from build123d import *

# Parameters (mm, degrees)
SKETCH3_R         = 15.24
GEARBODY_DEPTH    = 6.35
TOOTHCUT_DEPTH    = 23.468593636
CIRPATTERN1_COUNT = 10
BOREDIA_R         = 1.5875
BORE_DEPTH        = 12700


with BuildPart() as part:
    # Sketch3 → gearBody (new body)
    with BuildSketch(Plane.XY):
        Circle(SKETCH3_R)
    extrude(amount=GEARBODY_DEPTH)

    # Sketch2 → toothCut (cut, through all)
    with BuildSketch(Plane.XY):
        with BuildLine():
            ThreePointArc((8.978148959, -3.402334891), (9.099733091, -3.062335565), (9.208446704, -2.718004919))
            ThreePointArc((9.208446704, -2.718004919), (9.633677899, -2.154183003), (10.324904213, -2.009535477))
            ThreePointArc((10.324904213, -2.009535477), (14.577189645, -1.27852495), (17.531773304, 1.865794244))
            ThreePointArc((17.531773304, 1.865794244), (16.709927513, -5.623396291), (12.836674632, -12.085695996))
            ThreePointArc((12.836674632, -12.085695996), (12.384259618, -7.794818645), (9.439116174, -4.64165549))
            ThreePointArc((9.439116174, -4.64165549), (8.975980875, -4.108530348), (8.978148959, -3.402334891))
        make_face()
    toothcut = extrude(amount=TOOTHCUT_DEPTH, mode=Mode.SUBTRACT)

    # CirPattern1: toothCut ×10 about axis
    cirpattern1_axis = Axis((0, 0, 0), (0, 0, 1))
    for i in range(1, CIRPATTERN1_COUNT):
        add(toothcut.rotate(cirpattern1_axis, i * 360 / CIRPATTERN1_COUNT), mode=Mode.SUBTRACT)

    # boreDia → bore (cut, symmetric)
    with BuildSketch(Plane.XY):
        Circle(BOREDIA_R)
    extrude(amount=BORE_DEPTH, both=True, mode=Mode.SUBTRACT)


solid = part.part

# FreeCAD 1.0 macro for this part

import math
import FreeCAD as App
import Part
import Sketcher
from FreeCAD import Vector
Q = App.Units.Quantity

doc = App.newDocument("Part")
body = doc.addObject("PartDesign::Body", "Body")

# Sketch on XY plane
sketch1 = body.newObject("Sketcher::SketchObject", "Sketch")
sketch1.AttachmentSupport = (doc.getObject("XY_Plane"), [""])
sketch1.MapMode = "FlatFace"
sketch1.addGeometry(Part.Circle(Vector(0, 0, 0), Vector(0, 0, 1), 15), False)
sketch1.addConstraint(Sketcher.Constraint("Coincident", 0, 3, -1, 1))
sketch1.addConstraint(Sketcher.Constraint("Diameter", 0, Q("1.2 in")))
pad1 = body.newObject("PartDesign::Pad", "Pad")
pad1.Profile = sketch1
pad1.Length = Q("0.25 in")

# Sketch on XY plane
sketch2 = body.newObject("Sketcher::SketchObject", "Sketch001")
sketch2.AttachmentSupport = (doc.getObject("XY_Plane"), [""])
sketch2.MapMode = "FlatFace"
sketch2.addGeometry(Part.ArcOfCircle(Part.Circle(Vector(0, 0, 0), Vector(0, 0, 1), 9.6), math.radians(-20.75), math.radians(-16.44)), False)
sketch2.addGeometry(Part.ArcOfCircle(Part.Circle(Vector(9.9, -3.8, 0), Vector(0, 0, 1), 1), math.radians(159), math.radians(242)), False)
sketch2.addGeometry(Part.ArcOfCircle(Part.Circle(Vector(6.2, -10.6, 0), Vector(0, 0, 1), 6.8), math.radians(-12), math.radians(62)), False)
sketch2.addGeometry(Part.ArcOfCircle(Part.Circle(Vector(0, 0, 0), Vector(0, 0, 1), 17.6), math.radians(-43), math.radians(6)), False)
sketch2.addGeometry(Part.ArcOfCircle(Part.Circle(Vector(11.4, 4.7, 0), Vector(0, 0, 1), 6.8), math.radians(-99), math.radians(-25)), False)
sketch2.addGeometry(Part.ArcOfCircle(Part.Circle(Vector(10.2, -3, 0), Vector(0, 0, 1), 1), math.radians(81), math.radians(164)), False)
sketch2.addConstraint(Sketcher.Constraint("Tangent", 0, 1, 1, 1))
sketch2.addConstraint(Sketcher.Constraint("Tangent", 1, 2, 2, 2))
sketch2.addConstraint(Sketcher.Constraint("Coincident", 2, 1, 3, 1))
sketch2.addConstraint(Sketcher.Constraint("Coincident", 3, 2, 4, 2))
sketch2.addConstraint(Sketcher.Constraint("Tangent", 4, 1, 5, 1))
sketch2.addConstraint(Sketcher.Constraint("Tangent", 5, 2, 0, 2))
sketch2.addConstraint(Sketcher.Constraint("Coincident", 0, 3, -1, 1))
sketch2.addConstraint(Sketcher.Constraint("Coincident", 3, 3, -1, 1))
sketch2.addConstraint(Sketcher.Constraint("Equal", 2, 4))
sketch2.addConstraint(Sketcher.Constraint("Equal", 1, 5))
sketch2.addConstraint(Sketcher.Constraint("Radius", 0, Q("0.378 in")))
sketch2.addConstraint(Sketcher.Constraint("Radius", 1, 1.00457))
sketch2.addConstraint(Sketcher.Constraint("Radius", 2, 6.794052))
sketch2.addConstraint(Sketcher.Constraint("Radius", 3, 17.630776))
sketch2.addConstraint(Sketcher.Constraint("DistanceX", 2, 3, 4, 3, 5.155999))
sketch2.addConstraint(Sketcher.Constraint("DistanceY", 0, 1, 4, 1, 1.392799))
sketch2.addConstraint(Sketcher.Constraint("DistanceX", -1, 1, 1, 3, 9.917529))
sketch2.addConstraint(Sketcher.Constraint("DistanceX", -1, 1, 2, 3, 6.203539))
pocket1 = body.newObject("PartDesign::Pocket", "Pocket")
pocket1.Profile = sketch2
pocket1.Type = "ThroughAll"
pocket1.Reversed = True
doc.recompute()

polarpattern = body.newObject("PartDesign::PolarPattern", "PolarPattern")
polarpattern.Originals = [pocket1]
polarpattern.Axis = (doc.getObject("Z_Axis"), [""])
polarpattern.Angle = 360
polarpattern.Occurrences = 10
body.Tip = polarpattern

# Sketch on XY plane
sketch3 = body.newObject("Sketcher::SketchObject", "Sketch002")
sketch3.AttachmentSupport = (doc.getObject("XY_Plane"), [""])
sketch3.MapMode = "FlatFace"
sketch3.addGeometry(Part.Circle(Vector(0, 0, 0), Vector(0, 0, 1), 1.6), False)
sketch3.addConstraint(Sketcher.Constraint("Coincident", 0, 3, -1, 1))
sketch3.addConstraint(Sketcher.Constraint("Diameter", 0, Q("0.125 in")))
pocket2 = body.newObject("PartDesign::Pocket", "Pocket001")
pocket2.Profile = sketch3
pocket2.Length = Q("1000 in")
pocket2.Midplane = True

doc.recompute()
